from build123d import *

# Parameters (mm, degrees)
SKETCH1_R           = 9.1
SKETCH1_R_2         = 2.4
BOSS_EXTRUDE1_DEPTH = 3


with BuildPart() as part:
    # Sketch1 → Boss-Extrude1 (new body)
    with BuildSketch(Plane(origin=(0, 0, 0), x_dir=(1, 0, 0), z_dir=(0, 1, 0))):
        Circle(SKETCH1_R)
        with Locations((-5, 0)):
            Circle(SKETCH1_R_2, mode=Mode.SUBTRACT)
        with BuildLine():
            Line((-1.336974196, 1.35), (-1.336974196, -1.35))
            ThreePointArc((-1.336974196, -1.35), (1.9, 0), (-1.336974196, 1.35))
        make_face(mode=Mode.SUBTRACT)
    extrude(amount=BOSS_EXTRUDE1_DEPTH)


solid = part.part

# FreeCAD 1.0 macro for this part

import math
import FreeCAD as App
import Part
import Sketcher
from FreeCAD import Vector
Q = App.Units.Quantity

doc = App.newDocument("Part")
params = doc.addObject("Spreadsheet::Sheet", "Params")
for row, (alias, value) in enumerate([
    ("sketch1_diameter", "18.2 mm"),
    ("sketch1_diameter2", "4.8 mm"),
    ("sketch1_radius", "1.9 mm"),
    ("sketch1_height", "2.7 mm"),
    ("pad1_length", "3 mm"),
], start=1):
    params.set(f"A{row}", alias)
    params.set(f"B{row}", "=" + value)
    params.setAlias(f"B{row}", alias)

body = doc.addObject("PartDesign::Body", "Body")

# Sketch on XZ plane
sketch1 = doc.addObject("Sketcher::SketchObject", "Sketch")
body.addObject(sketch1)
sketch1.AttachmentSupport = (doc.XZ_Plane, [""])
sketch1.MapMode = "FlatFace"
sketch1.addGeometry(Part.Circle(Vector(0, 0, 0), Vector(0, 0, 1), 9.1), False)
sketch1.addGeometry(Part.Circle(Vector(-5, 0, 0), Vector(0, 0, 1), 2.4), False)
sketch1.addGeometry(Part.LineSegment(Vector(-1.336974, 1.35, 0), Vector(-1.336974, -1.35, 0)), False)
sketch1.addGeometry(Part.ArcOfCircle(Part.Circle(Vector(0, 0, 0), Vector(0, 0, 1), 1.9), math.radians(-134.722246), math.radians(134.722246)), False)
sketch1.addConstraint(Sketcher.Constraint("Coincident", 2, 1, 3, 2))
sketch1.addConstraint(Sketcher.Constraint("Coincident", 3, 1, 2, 2))
sketch1.addConstraint(Sketcher.Constraint("Vertical", 2))
sketch1.addConstraint(Sketcher.Constraint("Coincident", 0, 3, -1, 1))
sketch1.addConstraint(Sketcher.Constraint("Coincident", 3, 3, -1, 1))
sketch1.addConstraint(Sketcher.Constraint("PointOnObject", 1, 3, -1))
sketch1.addConstraint(Sketcher.Constraint("Diameter", 0, Q("18.2 mm")))
sketch1.addConstraint(Sketcher.Constraint("Diameter", 1, Q("4.8 mm")))
sketch1.addConstraint(Sketcher.Constraint("Radius", 3, Q("1.9 mm")))
sketch1.addConstraint(Sketcher.Constraint("DistanceY", 2, 2, 2, 1, Q("2.7 mm")))
sketch1.addConstraint(Sketcher.Constraint("DistanceX", 1, 3, -1, 1, Q("5 mm")))
sketch1.setExpression("Constraints[6]", "Params.sketch1_diameter")
sketch1.setExpression("Constraints[7]", "Params.sketch1_diameter2")
sketch1.setExpression("Constraints[8]", "Params.sketch1_radius")
sketch1.setExpression("Constraints[9]", "Params.sketch1_height")
pad1 = doc.addObject("PartDesign::Pad", "Pad")
body.addObject(pad1)
pad1.Profile = sketch1
pad1.setExpression("Length", "Params.pad1_length")
pad1.Reversed = True

doc.recompute()
